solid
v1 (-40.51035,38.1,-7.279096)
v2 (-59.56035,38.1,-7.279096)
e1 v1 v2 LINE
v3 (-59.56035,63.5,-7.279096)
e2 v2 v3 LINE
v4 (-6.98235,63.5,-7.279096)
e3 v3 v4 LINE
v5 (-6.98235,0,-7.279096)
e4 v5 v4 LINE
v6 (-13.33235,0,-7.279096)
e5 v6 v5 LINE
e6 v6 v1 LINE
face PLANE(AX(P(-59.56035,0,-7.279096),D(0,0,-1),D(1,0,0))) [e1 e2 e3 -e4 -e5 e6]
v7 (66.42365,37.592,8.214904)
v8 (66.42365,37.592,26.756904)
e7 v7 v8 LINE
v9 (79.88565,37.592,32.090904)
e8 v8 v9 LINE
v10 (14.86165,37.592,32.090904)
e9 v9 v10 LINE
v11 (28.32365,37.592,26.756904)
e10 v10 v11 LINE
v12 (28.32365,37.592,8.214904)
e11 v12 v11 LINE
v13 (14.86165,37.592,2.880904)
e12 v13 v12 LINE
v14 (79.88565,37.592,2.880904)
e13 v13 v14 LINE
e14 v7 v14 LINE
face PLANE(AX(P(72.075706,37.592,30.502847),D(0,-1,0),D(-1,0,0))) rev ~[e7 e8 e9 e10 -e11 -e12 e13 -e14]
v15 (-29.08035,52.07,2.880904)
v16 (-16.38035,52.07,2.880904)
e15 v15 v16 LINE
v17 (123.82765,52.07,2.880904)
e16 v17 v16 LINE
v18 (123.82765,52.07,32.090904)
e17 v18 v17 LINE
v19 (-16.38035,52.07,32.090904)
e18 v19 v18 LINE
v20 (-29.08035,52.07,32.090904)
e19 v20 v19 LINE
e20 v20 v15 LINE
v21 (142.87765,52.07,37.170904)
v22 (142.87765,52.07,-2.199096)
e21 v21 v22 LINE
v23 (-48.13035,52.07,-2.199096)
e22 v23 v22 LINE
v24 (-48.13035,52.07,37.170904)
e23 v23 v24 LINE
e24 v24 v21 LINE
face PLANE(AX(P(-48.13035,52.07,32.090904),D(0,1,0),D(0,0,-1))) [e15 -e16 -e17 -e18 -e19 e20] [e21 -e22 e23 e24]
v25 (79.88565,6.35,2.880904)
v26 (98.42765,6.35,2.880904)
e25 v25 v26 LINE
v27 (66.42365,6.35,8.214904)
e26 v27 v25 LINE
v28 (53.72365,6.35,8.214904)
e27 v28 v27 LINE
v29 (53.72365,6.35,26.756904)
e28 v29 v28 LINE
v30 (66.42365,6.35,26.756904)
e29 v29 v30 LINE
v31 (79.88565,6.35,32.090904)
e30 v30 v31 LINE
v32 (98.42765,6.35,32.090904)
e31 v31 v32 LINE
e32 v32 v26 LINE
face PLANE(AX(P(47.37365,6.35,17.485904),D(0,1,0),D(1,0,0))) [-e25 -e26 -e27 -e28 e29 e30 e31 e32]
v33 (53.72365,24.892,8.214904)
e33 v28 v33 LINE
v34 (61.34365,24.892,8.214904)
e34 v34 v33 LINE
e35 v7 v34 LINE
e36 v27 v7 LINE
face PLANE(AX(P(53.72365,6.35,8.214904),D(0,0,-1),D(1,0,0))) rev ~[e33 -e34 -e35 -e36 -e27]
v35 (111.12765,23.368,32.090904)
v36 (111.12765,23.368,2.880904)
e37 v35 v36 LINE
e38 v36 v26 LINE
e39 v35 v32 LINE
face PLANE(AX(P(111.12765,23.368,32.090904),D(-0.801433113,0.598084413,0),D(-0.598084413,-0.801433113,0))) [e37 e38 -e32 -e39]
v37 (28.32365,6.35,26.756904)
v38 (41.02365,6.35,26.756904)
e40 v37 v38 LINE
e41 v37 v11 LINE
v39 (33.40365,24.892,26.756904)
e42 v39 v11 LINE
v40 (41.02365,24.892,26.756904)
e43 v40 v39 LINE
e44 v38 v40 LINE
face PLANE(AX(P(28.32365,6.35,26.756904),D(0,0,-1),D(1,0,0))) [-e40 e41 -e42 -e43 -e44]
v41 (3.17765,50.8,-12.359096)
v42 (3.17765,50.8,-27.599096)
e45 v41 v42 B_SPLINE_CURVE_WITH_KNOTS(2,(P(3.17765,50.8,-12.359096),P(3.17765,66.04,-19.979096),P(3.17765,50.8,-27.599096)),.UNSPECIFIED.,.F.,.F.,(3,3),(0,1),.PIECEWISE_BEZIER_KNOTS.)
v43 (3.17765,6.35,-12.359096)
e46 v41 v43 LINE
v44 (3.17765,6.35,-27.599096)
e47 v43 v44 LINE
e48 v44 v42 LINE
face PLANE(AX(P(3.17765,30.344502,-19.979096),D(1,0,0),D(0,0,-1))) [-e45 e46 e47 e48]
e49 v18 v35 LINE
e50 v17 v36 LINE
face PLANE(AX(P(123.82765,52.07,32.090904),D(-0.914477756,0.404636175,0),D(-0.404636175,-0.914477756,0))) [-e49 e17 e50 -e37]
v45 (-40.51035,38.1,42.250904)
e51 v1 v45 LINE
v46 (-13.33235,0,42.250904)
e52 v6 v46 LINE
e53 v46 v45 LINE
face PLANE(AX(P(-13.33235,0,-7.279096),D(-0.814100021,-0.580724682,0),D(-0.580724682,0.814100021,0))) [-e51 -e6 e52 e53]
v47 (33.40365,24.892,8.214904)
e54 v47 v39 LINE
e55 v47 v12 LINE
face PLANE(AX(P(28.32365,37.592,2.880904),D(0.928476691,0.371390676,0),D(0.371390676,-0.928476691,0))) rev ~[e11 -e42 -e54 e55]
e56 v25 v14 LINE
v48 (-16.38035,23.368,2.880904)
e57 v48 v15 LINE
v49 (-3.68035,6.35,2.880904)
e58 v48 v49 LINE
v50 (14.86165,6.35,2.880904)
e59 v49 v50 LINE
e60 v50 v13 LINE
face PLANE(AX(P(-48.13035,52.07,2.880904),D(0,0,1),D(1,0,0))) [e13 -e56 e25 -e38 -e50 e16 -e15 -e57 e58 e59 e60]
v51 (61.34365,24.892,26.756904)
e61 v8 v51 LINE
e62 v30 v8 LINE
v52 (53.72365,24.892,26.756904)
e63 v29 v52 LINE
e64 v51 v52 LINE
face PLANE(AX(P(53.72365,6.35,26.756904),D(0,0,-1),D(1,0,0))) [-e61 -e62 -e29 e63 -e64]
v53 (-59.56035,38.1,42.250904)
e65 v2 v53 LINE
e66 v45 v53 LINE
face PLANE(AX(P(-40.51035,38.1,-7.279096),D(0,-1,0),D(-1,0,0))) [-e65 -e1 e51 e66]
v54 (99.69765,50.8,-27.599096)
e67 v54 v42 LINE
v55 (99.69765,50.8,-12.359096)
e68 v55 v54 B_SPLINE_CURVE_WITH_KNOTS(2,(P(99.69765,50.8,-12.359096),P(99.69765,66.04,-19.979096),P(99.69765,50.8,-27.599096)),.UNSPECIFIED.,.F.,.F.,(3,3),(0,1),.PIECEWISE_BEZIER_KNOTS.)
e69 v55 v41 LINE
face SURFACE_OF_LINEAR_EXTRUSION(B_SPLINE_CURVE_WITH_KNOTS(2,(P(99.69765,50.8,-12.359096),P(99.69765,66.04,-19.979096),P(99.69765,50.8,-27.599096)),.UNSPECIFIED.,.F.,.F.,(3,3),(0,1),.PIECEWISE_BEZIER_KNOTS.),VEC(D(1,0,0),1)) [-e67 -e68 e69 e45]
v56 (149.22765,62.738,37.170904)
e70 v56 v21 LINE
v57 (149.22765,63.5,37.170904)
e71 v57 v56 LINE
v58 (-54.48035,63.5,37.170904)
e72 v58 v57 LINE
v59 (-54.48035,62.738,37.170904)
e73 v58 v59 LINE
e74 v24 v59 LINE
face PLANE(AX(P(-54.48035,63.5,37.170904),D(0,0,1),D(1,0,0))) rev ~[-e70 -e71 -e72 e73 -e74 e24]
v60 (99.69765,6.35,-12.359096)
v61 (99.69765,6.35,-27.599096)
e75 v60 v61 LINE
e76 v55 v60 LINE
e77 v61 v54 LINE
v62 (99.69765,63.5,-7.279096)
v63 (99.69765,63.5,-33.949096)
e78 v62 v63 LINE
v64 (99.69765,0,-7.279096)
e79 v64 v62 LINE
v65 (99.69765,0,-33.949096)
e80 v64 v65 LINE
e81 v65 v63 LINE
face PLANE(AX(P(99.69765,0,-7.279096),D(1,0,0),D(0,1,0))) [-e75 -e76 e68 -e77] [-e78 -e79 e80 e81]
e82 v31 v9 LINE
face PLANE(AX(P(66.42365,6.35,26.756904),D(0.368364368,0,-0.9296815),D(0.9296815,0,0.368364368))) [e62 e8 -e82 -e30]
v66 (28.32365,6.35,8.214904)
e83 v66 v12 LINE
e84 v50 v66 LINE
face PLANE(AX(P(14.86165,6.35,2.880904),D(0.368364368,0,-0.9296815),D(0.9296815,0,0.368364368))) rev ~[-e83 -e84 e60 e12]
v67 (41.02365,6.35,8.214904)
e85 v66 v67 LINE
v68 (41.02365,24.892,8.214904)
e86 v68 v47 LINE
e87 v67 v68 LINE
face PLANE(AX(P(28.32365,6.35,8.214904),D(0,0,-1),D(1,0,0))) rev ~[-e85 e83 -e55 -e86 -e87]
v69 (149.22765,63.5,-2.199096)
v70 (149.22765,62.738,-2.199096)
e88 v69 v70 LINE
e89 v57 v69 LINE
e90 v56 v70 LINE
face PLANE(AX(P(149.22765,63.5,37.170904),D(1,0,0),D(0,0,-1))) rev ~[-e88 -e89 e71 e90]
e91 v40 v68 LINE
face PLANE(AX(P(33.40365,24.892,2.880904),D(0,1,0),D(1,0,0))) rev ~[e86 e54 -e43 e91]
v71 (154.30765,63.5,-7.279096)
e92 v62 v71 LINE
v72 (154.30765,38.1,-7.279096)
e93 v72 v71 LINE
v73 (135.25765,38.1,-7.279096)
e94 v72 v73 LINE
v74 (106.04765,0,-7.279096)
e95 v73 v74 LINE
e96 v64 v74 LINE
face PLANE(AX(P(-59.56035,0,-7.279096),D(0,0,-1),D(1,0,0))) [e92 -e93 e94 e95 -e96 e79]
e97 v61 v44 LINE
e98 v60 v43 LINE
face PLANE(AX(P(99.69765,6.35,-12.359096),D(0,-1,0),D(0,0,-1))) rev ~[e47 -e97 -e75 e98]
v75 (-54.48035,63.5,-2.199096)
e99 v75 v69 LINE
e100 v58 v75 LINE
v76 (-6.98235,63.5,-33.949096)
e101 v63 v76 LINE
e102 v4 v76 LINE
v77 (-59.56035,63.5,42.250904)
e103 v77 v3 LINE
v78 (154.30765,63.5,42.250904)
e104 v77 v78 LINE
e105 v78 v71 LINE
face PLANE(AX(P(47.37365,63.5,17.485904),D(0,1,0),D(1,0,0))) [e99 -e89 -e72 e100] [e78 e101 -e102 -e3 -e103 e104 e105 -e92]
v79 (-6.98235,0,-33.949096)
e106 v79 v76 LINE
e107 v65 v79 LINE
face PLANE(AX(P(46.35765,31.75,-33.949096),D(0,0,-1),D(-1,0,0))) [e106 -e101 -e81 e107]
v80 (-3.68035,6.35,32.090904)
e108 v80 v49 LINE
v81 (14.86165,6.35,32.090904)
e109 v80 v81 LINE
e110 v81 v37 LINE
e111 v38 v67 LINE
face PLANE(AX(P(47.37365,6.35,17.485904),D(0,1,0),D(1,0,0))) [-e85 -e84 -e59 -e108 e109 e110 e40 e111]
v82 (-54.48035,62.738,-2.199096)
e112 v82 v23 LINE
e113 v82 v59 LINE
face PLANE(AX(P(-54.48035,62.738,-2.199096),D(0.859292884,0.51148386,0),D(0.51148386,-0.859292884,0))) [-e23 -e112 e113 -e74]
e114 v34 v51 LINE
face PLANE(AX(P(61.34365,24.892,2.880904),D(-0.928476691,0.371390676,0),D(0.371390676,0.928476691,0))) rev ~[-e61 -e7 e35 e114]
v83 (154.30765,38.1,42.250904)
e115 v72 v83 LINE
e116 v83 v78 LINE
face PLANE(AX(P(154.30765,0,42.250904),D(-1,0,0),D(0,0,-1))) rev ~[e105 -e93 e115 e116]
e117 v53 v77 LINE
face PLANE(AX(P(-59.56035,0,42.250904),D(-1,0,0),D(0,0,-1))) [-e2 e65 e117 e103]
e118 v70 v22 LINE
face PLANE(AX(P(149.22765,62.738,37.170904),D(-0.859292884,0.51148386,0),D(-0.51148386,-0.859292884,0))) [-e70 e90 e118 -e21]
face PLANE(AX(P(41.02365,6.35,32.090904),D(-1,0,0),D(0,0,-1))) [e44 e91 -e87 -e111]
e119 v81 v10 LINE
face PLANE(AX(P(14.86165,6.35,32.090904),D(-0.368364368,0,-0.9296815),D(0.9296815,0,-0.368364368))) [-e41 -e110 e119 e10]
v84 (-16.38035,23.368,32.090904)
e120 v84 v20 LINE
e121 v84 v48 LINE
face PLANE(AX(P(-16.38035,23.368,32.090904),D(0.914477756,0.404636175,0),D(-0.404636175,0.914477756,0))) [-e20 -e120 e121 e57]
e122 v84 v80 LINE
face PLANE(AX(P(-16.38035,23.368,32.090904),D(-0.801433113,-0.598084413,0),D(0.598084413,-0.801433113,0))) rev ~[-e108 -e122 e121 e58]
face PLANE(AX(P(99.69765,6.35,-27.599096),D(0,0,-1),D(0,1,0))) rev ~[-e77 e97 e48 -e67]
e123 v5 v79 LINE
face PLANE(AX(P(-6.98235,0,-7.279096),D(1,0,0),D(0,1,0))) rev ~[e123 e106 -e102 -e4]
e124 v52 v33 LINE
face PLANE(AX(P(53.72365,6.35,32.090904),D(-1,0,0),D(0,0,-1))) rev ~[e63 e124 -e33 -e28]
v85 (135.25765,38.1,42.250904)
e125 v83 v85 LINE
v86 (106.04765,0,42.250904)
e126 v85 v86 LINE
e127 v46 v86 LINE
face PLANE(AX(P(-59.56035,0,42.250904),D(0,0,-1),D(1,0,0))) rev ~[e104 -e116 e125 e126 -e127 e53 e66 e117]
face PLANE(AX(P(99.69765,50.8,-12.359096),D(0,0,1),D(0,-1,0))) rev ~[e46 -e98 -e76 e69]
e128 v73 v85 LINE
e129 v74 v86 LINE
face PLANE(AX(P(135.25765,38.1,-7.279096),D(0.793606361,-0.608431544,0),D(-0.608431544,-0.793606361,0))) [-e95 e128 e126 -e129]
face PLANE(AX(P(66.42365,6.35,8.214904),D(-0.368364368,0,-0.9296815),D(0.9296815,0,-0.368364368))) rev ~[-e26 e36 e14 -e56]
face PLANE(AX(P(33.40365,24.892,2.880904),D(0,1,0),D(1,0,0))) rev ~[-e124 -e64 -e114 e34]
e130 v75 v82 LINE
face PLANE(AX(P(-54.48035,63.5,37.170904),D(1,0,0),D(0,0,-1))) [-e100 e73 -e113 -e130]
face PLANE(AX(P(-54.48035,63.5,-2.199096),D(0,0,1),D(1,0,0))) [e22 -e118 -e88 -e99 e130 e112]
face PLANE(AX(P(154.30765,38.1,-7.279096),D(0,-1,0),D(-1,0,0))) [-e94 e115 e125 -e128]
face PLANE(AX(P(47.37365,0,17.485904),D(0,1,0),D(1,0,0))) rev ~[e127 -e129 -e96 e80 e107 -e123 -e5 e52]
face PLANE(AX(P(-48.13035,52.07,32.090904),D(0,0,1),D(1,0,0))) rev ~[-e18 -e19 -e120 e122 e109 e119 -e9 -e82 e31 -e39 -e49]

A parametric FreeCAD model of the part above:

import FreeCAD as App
import Part
import Sketcher
from FreeCAD import Vector
Q = App.Units.Quantity


def add_polygon(sketch, points):
    """Adds a closed chain of lines whose ends are joined by coincident constraints."""
    first, n = sketch.GeometryCount, len(points)
    for a, b in zip(points, points[1:] + points[:1]):
        sketch.addGeometry(Part.LineSegment(App.Vector(*a, 0), App.Vector(*b, 0)), False)
    for i in range(n):
        sketch.addConstraint(Sketcher.Constraint("Coincident", first + i, 2, first + (i + 1) % n, 1))

doc = App.newDocument("Part")
body = doc.addObject("PartDesign::Body", "Body")

# Sketch on XZ plane
sketch1 = doc.addObject("Sketcher::SketchObject", "Sketch")
body.addObject(sketch1)
sketch1.AttachmentSupport = (doc.XZ_Plane, [""])
sketch1.MapMode = "FlatFace"
add_polygon(sketch1, [(-60, -7), (-60, 42), (154, 42), (154, -7)])  # lines 0-3
sketch1.addConstraint(Sketcher.Constraint("Vertical", 0))
sketch1.addConstraint(Sketcher.Constraint("Horizontal", 1))
sketch1.addConstraint(Sketcher.Constraint("Vertical", 2))
sketch1.addConstraint(Sketcher.Constraint("Horizontal", 3))
sketch1.addConstraint(Sketcher.Constraint("DistanceX", 1, 1, 1, 2, Q("8.42 in")))
sketch1.addConstraint(Sketcher.Constraint("DistanceY", 0, 1, 0, 2, Q("1.95 in")))
sketch1.addConstraint(Sketcher.Constraint("DistanceX", 0, 2, -1, 1, Q("59.56035 mm")))
sketch1.addConstraint(Sketcher.Constraint("DistanceY", -1, 1, 0, 2, Q("42.250904 mm")))
pad1 = doc.addObject("PartDesign::Pad", "Pad")
body.addObject(pad1)
pad1.Profile = sketch1
pad1.Length = Q("2.5 in")
pad1.Reversed = True

# Sketch on XZ plane
sketch2 = doc.addObject("Sketcher::SketchObject", "Sketch001")
body.addObject(sketch2)
sketch2.AttachmentSupport = (doc.XZ_Plane, [""])
sketch2.MapMode = "FlatFace"
sketch2.AttachmentOffset = App.Placement(Vector(0, 0, -2.5 * 25.4), App.Rotation())
add_polygon(sketch2, [(-54, -2), (-54, 37), (149, 37), (149, -2)])  # lines 0-3
sketch2.addConstraint(Sketcher.Constraint("Vertical", 0))
sketch2.addConstraint(Sketcher.Constraint("Horizontal", 1))
sketch2.addConstraint(Sketcher.Constraint("Vertical", 2))
sketch2.addConstraint(Sketcher.Constraint("Horizontal", 3))
sketch2.addConstraint(Sketcher.Constraint("DistanceX", 1, 1, 1, 2, Q("8.02 in")))
sketch2.addConstraint(Sketcher.Constraint("DistanceY", 0, 1, 0, 2, Q("1.55 in")))
sketch2.addConstraint(Sketcher.Constraint("DistanceX", 0, 2, -1, 1, Q("54.48035 mm")))
sketch2.addConstraint(Sketcher.Constraint("DistanceY", -1, 1, 0, 2, Q("37.170904 mm")))
pocket1 = doc.addObject("PartDesign::Pocket", "Pocket")
body.addObject(pocket1)
pocket1.Profile = sketch2
pocket1.Length = Q("0.45 in")
pocket1.Reversed = True

# Sketch on XZ plane
sketch3 = doc.addObject("Sketcher::SketchObject", "Sketch002")
body.addObject(sketch3)
sketch3.AttachmentSupport = (doc.XZ_Plane, [""])
sketch3.MapMode = "FlatFace"
sketch3.AttachmentOffset = App.Placement(Vector(0, 0, -2.05 * 25.4), App.Rotation())
add_polygon(sketch3, [(-48, 3), (-48, 32), (143, 32), (143, 3)])  # lines 0-3
sketch3.addConstraint(Sketcher.Constraint("Vertical", 0))
sketch3.addConstraint(Sketcher.Constraint("Horizontal", 1))
sketch3.addConstraint(Sketcher.Constraint("Vertical", 2))
sketch3.addConstraint(Sketcher.Constraint("Horizontal", 3))
sketch3.addConstraint(Sketcher.Constraint("DistanceX", 1, 1, 1, 2, Q("7.52 in")))
sketch3.addConstraint(Sketcher.Constraint("DistanceY", 0, 1, 0, 2, Q("1.15 in")))
sketch3.addConstraint(Sketcher.Constraint("DistanceX", 0, 2, -1, 1, Q("48.13035 mm")))
sketch3.addConstraint(Sketcher.Constraint("DistanceY", -1, 1, 0, 2, Q("32.090904 mm")))
pocket2 = doc.addObject("PartDesign::Pocket", "Pocket001")
body.addObject(pocket2)
pocket2.Profile = sketch3
pocket2.Length = Q("1.8 in")
pocket2.Reversed = True

# Sketch on YZ plane
sketch4 = doc.addObject("Sketcher::SketchObject", "Sketch003")
body.addObject(sketch4)
sketch4.AttachmentSupport = (doc.YZ_Plane, [""])
sketch4.MapMode = "FlatFace"
sketch4.AttachmentOffset = App.Placement(Vector(0, 0, 142.87765), App.Rotation())
add_polygon(sketch4, [(52, 3), (6, 3), (6, 32), (52, 32)])  # lines 0-3
sketch4.addConstraint(Sketcher.Constraint("Horizontal", 0))
sketch4.addConstraint(Sketcher.Constraint("Vertical", 1))
sketch4.addConstraint(Sketcher.Constraint("Horizontal", 2))
sketch4.addConstraint(Sketcher.Constraint("Vertical", 3))
sketch4.addConstraint(Sketcher.Constraint("DistanceX", 0, 2, 0, 1, Q("1.8 in")))
sketch4.addConstraint(Sketcher.Constraint("DistanceY", 1, 1, 1, 2, Q("1.15 in")))
sketch4.addConstraint(Sketcher.Constraint("DistanceX", -1, 1, 0, 2, Q("0.25 in")))
sketch4.addConstraint(Sketcher.Constraint("DistanceY", -1, 1, 0, 2, Q("2.880904 mm")))
pad2 = doc.addObject("PartDesign::Pad", "Pad001")
body.addObject(pad2)
pad2.Profile = sketch4
pad2.Length = Q("1.25 in")
pad2.Reversed = True

# Sketch on YZ plane
sketch5 = doc.addObject("Sketcher::SketchObject", "Sketch004")
body.addObject(sketch5)
sketch5.AttachmentSupport = (doc.YZ_Plane, [""])
sketch5.MapMode = "FlatFace"
sketch5.AttachmentOffset = App.Placement(Vector(0, 0, -48.13035), App.Rotation())
add_polygon(sketch5, [(52, 32), (6, 32), (6, 3), (52, 3)])  # lines 0-3
sketch5.addConstraint(Sketcher.Constraint("Horizontal", 0))
sketch5.addConstraint(Sketcher.Constraint("Vertical", 1))
sketch5.addConstraint(Sketcher.Constraint("Horizontal", 2))
sketch5.addConstraint(Sketcher.Constraint("Vertical", 3))
sketch5.addConstraint(Sketcher.Constraint("DistanceY", 1, 2, 1, 1, Q("1.15 in")))
sketch5.addConstraint(Sketcher.Constraint("DistanceX", -1, 1, 2, 2, Q("2.05 in")))
sketch5.addConstraint(Sketcher.Constraint("DistanceX", 0, 2, 0, 1, Q("45.802109 mm")))
sketch5.addConstraint(Sketcher.Constraint("DistanceY", -1, 1, 0, 2, Q("32.090904 mm")))
pad3 = doc.addObject("PartDesign::Pad", "Pad002")
body.addObject(pad3)
pad3.Profile = sketch5
pad3.Length = Q("1.25 in")

# Sketch on XY plane
sketch6 = doc.addObject("Sketcher::SketchObject", "Sketch005")
body.addObject(sketch6)
sketch6.AttachmentSupport = (doc.XY_Plane, [""])
sketch6.MapMode = "FlatFace"
sketch6.AttachmentOffset = App.Placement(Vector(0, 0, -2.199096), App.Rotation())
add_polygon(sketch6, [(-48, 52), (-54, 63), (-54, 52)])  # lines 0-2
sketch6.addConstraint(Sketcher.Constraint("Vertical", 1))
sketch6.addConstraint(Sketcher.Constraint("Horizontal", 2))
sketch6.addConstraint(Sketcher.Constraint("DistanceX", 2, 1, 2, 2, Q("0.25 in")))
sketch6.addConstraint(Sketcher.Constraint("DistanceY", 1, 2, 1, 1, Q("0.42 in")))
sketch6.addConstraint(Sketcher.Constraint("DistanceY", -1, 1, 0, 2, Q("2.47 in")))
sketch6.addConstraint(Sketcher.Constraint("DistanceX", 0, 2, -1, 1, Q("54.48035 mm")))
pad4 = doc.addObject("PartDesign::Pad", "Pad003")
body.addObject(pad4)
pad4.Profile = sketch6
pad4.Length = Q("1.6 in")

# Sketch on XY plane
sketch7 = doc.addObject("Sketcher::SketchObject", "Sketch006")
body.addObject(sketch7)
sketch7.AttachmentSupport = (doc.XY_Plane, [""])
sketch7.MapMode = "FlatFace"
sketch7.AttachmentOffset = App.Placement(Vector(0, 0, 37.170904), App.Rotation())
add_polygon(sketch7, [(143, 52), (149, 63), (149, 52)])  # lines 0-2
sketch7.addConstraint(Sketcher.Constraint("Vertical", 1))
sketch7.addConstraint(Sketcher.Constraint("Horizontal", 2))
sketch7.addConstraint(Sketcher.Constraint("DistanceX", 2, 2, 2, 1, Q("0.25 in")))
sketch7.addConstraint(Sketcher.Constraint("DistanceY", 1, 2, 1, 1, Q("0.42 in")))
sketch7.addConstraint(Sketcher.Constraint("DistanceY", -1, 1, 0, 2, Q("2.47 in")))
sketch7.addConstraint(Sketcher.Constraint("DistanceX", -1, 1, 0, 2, Q("149.22765 mm")))
pad5 = doc.addObject("PartDesign::Pad", "Pad004")
body.addObject(pad5)
pad5.Profile = sketch7
pad5.Length = Q("1.6 in")
pad5.Reversed = True

# Sketch on XZ plane
sketch8 = doc.addObject("Sketcher::SketchObject", "Sketch007")
body.addObject(sketch8)
sketch8.AttachmentSupport = (doc.XZ_Plane, [""])
sketch8.MapMode = "FlatFace"
sketch8.AttachmentOffset = App.Placement(Vector(0, 0, -0.25 * 25.4), App.Rotation())
add_polygon(sketch8, [(41, 3), (41, 32), (54, 32), (54, 3)])  # lines 0-3
sketch8.addConstraint(Sketcher.Constraint("Vertical", 0))
sketch8.addConstraint(Sketcher.Constraint("Horizontal", 1))
sketch8.addConstraint(Sketcher.Constraint("Vertical", 2))
sketch8.addConstraint(Sketcher.Constraint("Horizontal", 3))
sketch8.addConstraint(Sketcher.Constraint("DistanceX", 1, 1, 1, 2, Q("0.5 in")))
sketch8.addConstraint(Sketcher.Constraint("DistanceY", 0, 1, 0, 2, Q("1.15 in")))
sketch8.addConstraint(Sketcher.Constraint("DistanceX", -1, 1, 0, 2, Q("41.02365 mm")))
sketch8.addConstraint(Sketcher.Constraint("DistanceY", -1, 1, 0, 2, Q("32.090904 mm")))
pad6 = doc.addObject("PartDesign::Pad", "Pad005")
body.addObject(pad6)
pad6.Profile = sketch8
pad6.Length = Q("0.73 in")
pad6.Reversed = True

# Sketch on XY plane
sketch9 = doc.addObject("Sketcher::SketchObject", "Sketch008")
body.addObject(sketch9)
sketch9.AttachmentSupport = (doc.XY_Plane, [""])
sketch9.MapMode = "FlatFace"
sketch9.AttachmentOffset = App.Placement(Vector(0, 0, 2.880904), App.Rotation())
add_polygon(sketch9, [(66, 38), (28, 38), (33, 25), (61, 25)])  # lines 0-3
sketch9.addConstraint(Sketcher.Constraint("Horizontal", 0))
sketch9.addConstraint(Sketcher.Constraint("Horizontal", 2))
sketch9.addConstraint(Sketcher.Constraint("Equal", 1, 3))
sketch9.addConstraint(Sketcher.Constraint("DistanceX", 0, 2, 0, 1, Q("1.5 in")))
sketch9.addConstraint(Sketcher.Constraint("DistanceX", 2, 1, 2, 2, Q("1.1 in")))
sketch9.addConstraint(Sketcher.Constraint("DistanceY", 1, 2, 0, 2, Q("0.5 in")))
sketch9.addConstraint(Sketcher.Constraint("DistanceY", -1, 1, 0, 2, Q("1.48 in")))
sketch9.addConstraint(Sketcher.Constraint("DistanceX", -1, 1, 0, 2, Q("28.32365 mm")))
pad7 = doc.addObject("PartDesign::Pad", "Pad006")
body.addObject(pad7)
pad7.Profile = sketch9
pad7.Length = Q("1.2 in")

# Sketch on XY plane
sketch10 = doc.addObject("Sketcher::SketchObject", "Sketch009")
body.addObject(sketch10)
sketch10.AttachmentSupport = (doc.XY_Plane, [""])
sketch10.MapMode = "FlatFace"
sketch10.AttachmentOffset = App.Placement(Vector(0, 0, -7.279096), App.Rotation())
add_polygon(sketch10, [(100, 64), (100, 0), (-7, 0), (-7, 64)])  # lines 0-3
sketch10.addConstraint(Sketcher.Constraint("Vertical", 0))
sketch10.addConstraint(Sketcher.Constraint("Horizontal", 1))
sketch10.addConstraint(Sketcher.Constraint("Vertical", 2))
sketch10.addConstraint(Sketcher.Constraint("Horizontal", 3))
sketch10.addConstraint(Sketcher.Constraint("PointOnObject", 0, 2, -1))
sketch10.addConstraint(Sketcher.Constraint("DistanceX", 1, 2, 1, 1, Q("4.2 in")))
sketch10.addConstraint(Sketcher.Constraint("DistanceY", 0, 2, 0, 1, Q("2.5 in")))
sketch10.addConstraint(Sketcher.Constraint("DistanceX", -1, 1, 0, 2, Q("99.69765 mm")))
pad8 = doc.addObject("PartDesign::Pad", "Pad007")
body.addObject(pad8)
pad8.Profile = sketch10
pad8.Length = Q("1.05 in")
pad8.Reversed = True

# Sketch on YZ plane
sketch11 = doc.addObject("Sketcher::SketchObject", "Sketch010")
body.addObject(sketch11)
sketch11.AttachmentSupport = (doc.YZ_Plane, [""])
sketch11.MapMode = "FlatFace"
sketch11.AttachmentOffset = App.Placement(Vector(0, 0, 99.69765), App.Rotation())
sketch11.addGeometry(Part.LineSegment(Vector(50.8, -12.359096, 0), Vector(6.35, -12.359096, 0)), False)
sketch11.addGeometry(Part.LineSegment(Vector(6.35, -12.359096, 0), Vector(6.35, -27.599096, 0)), False)
sketch11.addGeometry(Part.LineSegment(Vector(6.35, -27.599096, 0), Vector(50.8, -27.599096, 0)), False)
sketch11.addGeometry(Part.BSplineCurve([Vector(50.8, -12.359096, 0), Vector(66.04, -19.979096, 0), Vector(50.8, -27.599096, 0)], [3, 3], [0, 1], False, 2, [1, 1, 1], False), False)
sketch11.addConstraint(Sketcher.Constraint("Block", 3))
sketch11.addConstraint(Sketcher.Constraint("Coincident", 0, 2, 1, 1))
sketch11.addConstraint(Sketcher.Constraint("Coincident", 1, 2, 2, 1))
sketch11.addConstraint(Sketcher.Constraint("Coincident", 2, 2, 3, 2))
sketch11.addConstraint(Sketcher.Constraint("Coincident", 3, 1, 0, 1))
sketch11.addConstraint(Sketcher.Constraint("Horizontal", 0))
sketch11.addConstraint(Sketcher.Constraint("Vertical", 1))
sketch11.addConstraint(Sketcher.Constraint("Horizontal", 2))
sketch11.addConstraint(Sketcher.Constraint("DistanceX", 0, 2, 0, 1, Q("1.75 in")))
pocket3 = doc.addObject("PartDesign::Pocket", "Pocket002")
body.addObject(pocket3)
pocket3.Profile = sketch11
pocket3.Length = Q("3.8 in")

# Sketch on XY plane
sketch12 = doc.addObject("Sketcher::SketchObject", "Sketch011")
body.addObject(sketch12)
sketch12.AttachmentSupport = (doc.XY_Plane, [""])
sketch12.MapMode = "FlatFace"
sketch12.AttachmentOffset = App.Placement(Vector(0, 0, -7.279096), App.Rotation())
add_polygon(sketch12, [(106, 0), (154, 38), (154, 0)])  # lines 0-2
sketch12.addConstraint(Sketcher.Constraint("Vertical", 1))
sketch12.addConstraint(Sketcher.Constraint("Horizontal", 2))
sketch12.addConstraint(Sketcher.Constraint("PointOnObject", 1, 2, -1))
sketch12.addConstraint(Sketcher.Constraint("DistanceX", 2, 2, 2, 1, Q("1.9 in")))
sketch12.addConstraint(Sketcher.Constraint("DistanceY", 1, 2, 1, 1, Q("1.5 in")))
sketch12.addConstraint(Sketcher.Constraint("DistanceX", -1, 1, 0, 2, Q("154.30765 mm")))
pocket4 = doc.addObject("PartDesign::Pocket", "Pocket003")
body.addObject(pocket4)
pocket4.Profile = sketch12
pocket4.Length = Q("1.95 in")
pocket4.Reversed = True

# Sketch on XZ plane
sketch13 = doc.addObject("Sketcher::SketchObject", "Sketch012")
body.addObject(sketch13)
sketch13.AttachmentSupport = (doc.XZ_Plane, [""])
sketch13.MapMode = "FlatFace"
sketch13.AttachmentOffset = App.Placement(Vector(0, 0, -2.05 * 25.4), App.Rotation())
add_polygon(sketch13, [(111, 3), (111, 32), (124, 32), (124, 3)])  # lines 0-3
sketch13.addConstraint(Sketcher.Constraint("Vertical", 0))
sketch13.addConstraint(Sketcher.Constraint("Horizontal", 1))
sketch13.addConstraint(Sketcher.Constraint("Vertical", 2))
sketch13.addConstraint(Sketcher.Constraint("Horizontal", 3))
sketch13.addConstraint(Sketcher.Constraint("DistanceX", 1, 1, 1, 2, Q("0.5 in")))
sketch13.addConstraint(Sketcher.Constraint("DistanceY", 0, 1, 0, 2, Q("1.15 in")))
sketch13.addConstraint(Sketcher.Constraint("DistanceX", -1, 1, 0, 2, Q("111.12765 mm")))
sketch13.addConstraint(Sketcher.Constraint("DistanceY", -1, 1, 0, 2, Q("32.090904 mm")))
pocket5 = doc.addObject("PartDesign::Pocket", "Pocket004")
body.addObject(pocket5)
pocket5.Profile = sketch13
pocket5.Length = Q("1.13 in")
pocket5.Reversed = True

# Sketch on XY plane
sketch14 = doc.addObject("Sketcher::SketchObject", "Sketch013")
body.addObject(sketch14)
sketch14.AttachmentSupport = (doc.XY_Plane, [""])
sketch14.MapMode = "FlatFace"
sketch14.AttachmentOffset = App.Placement(Vector(0, 0, 32.090904), App.Rotation())
add_polygon(sketch14, [(111, 23), (124, 52), (124, 23)])  # lines 0-2
sketch14.addConstraint(Sketcher.Constraint("Vertical", 1))
sketch14.addConstraint(Sketcher.Constraint("Horizontal", 2))
sketch14.addConstraint(Sketcher.Constraint("DistanceX", 2, 2, 2, 1, Q("0.5 in")))
sketch14.addConstraint(Sketcher.Constraint("DistanceY", 1, 2, 1, 1, Q("1.13 in")))
sketch14.addConstraint(Sketcher.Constraint("DistanceY", -1, 1, 0, 2, Q("2.05 in")))
sketch14.addConstraint(Sketcher.Constraint("DistanceX", -1, 1, 0, 2, Q("123.82765 mm")))
pad9 = doc.addObject("PartDesign::Pad", "Pad008")
body.addObject(pad9)
pad9.Profile = sketch14
pad9.Length = Q("1.15 in")
pad9.Reversed = True

# Sketch on XZ plane
sketch15 = doc.addObject("Sketcher::SketchObject", "Sketch014")
body.addObject(sketch15)
sketch15.AttachmentSupport = (doc.XZ_Plane, [""])
sketch15.MapMode = "FlatFace"
sketch15.AttachmentOffset = App.Placement(Vector(0, 0, -2.05 * 25.4), App.Rotation())
add_polygon(sketch15, [(-29, 3), (-29, 32), (-16, 32), (-16, 3)])  # lines 0-3
sketch15.addConstraint(Sketcher.Constraint("Vertical", 0))
sketch15.addConstraint(Sketcher.Constraint("Horizontal", 1))
sketch15.addConstraint(Sketcher.Constraint("Vertical", 2))
sketch15.addConstraint(Sketcher.Constraint("Horizontal", 3))
sketch15.addConstraint(Sketcher.Constraint("DistanceX", 1, 1, 1, 2, Q("0.5 in")))
sketch15.addConstraint(Sketcher.Constraint("DistanceY", 0, 1, 0, 2, Q("1.15 in")))
sketch15.addConstraint(Sketcher.Constraint("DistanceX", 0, 2, -1, 1, Q("29.08035 mm")))
sketch15.addConstraint(Sketcher.Constraint("DistanceY", -1, 1, 0, 2, Q("32.090904 mm")))
pocket6 = doc.addObject("PartDesign::Pocket", "Pocket005")
body.addObject(pocket6)
pocket6.Profile = sketch15
pocket6.Length = Q("1.13 in")
pocket6.Reversed = True

# Sketch on XY plane
sketch16 = doc.addObject("Sketcher::SketchObject", "Sketch015")
body.addObject(sketch16)
sketch16.AttachmentSupport = (doc.XY_Plane, [""])
sketch16.MapMode = "FlatFace"
sketch16.AttachmentOffset = App.Placement(Vector(0, 0, 32.090904), App.Rotation())
add_polygon(sketch16, [(-29, 52), (-16, 23), (-29, 23)])  # lines 0-2
sketch16.addConstraint(Sketcher.Constraint("Horizontal", 1))
sketch16.addConstraint(Sketcher.Constraint("Vertical", 2))
sketch16.addConstraint(Sketcher.Constraint("DistanceX", 1, 2, 1, 1, Q("0.5 in")))
sketch16.addConstraint(Sketcher.Constraint("DistanceY", 2, 1, 2, 2, Q("1.13 in")))
sketch16.addConstraint(Sketcher.Constraint("DistanceY", -1, 1, 0, 2, Q("0.92 in")))
sketch16.addConstraint(Sketcher.Constraint("DistanceX", 0, 2, -1, 1, Q("16.38035 mm")))
pad10 = doc.addObject("PartDesign::Pad", "Pad009")
body.addObject(pad10)
pad10.Profile = sketch16
pad10.Length = Q("1.15 in")
pad10.Reversed = True

# Sketch on XY plane
sketch17 = doc.addObject("Sketcher::SketchObject", "Sketch016")
body.addObject(sketch17)
sketch17.AttachmentSupport = (doc.XY_Plane, [""])
sketch17.MapMode = "FlatFace"
sketch17.AttachmentOffset = App.Placement(Vector(0, 0, 32.090904), App.Rotation())
add_polygon(sketch17, [(98, 6), (111, 23), (111, 6)])  # lines 0-2
sketch17.addConstraint(Sketcher.Constraint("Vertical", 1))
sketch17.addConstraint(Sketcher.Constraint("Horizontal", 2))
sketch17.addConstraint(Sketcher.Constraint("DistanceX", 2, 2, 2, 1, Q("0.5 in")))
sketch17.addConstraint(Sketcher.Constraint("DistanceY", 1, 2, 1, 1, Q("0.67 in")))
sketch17.addConstraint(Sketcher.Constraint("DistanceY", -1, 1, 0, 2, Q("0.92 in")))
sketch17.addConstraint(Sketcher.Constraint("DistanceX", -1, 1, 0, 2, Q("111.12765 mm")))
pad11 = doc.addObject("PartDesign::Pad", "Pad010")
body.addObject(pad11)
pad11.Profile = sketch17
pad11.Length = Q("1.15 in")
pad11.Reversed = True

# Sketch on XY plane
sketch18 = doc.addObject("Sketcher::SketchObject", "Sketch017")
body.addObject(sketch18)
sketch18.AttachmentSupport = (doc.XY_Plane, [""])
sketch18.MapMode = "FlatFace"
sketch18.AttachmentOffset = App.Placement(Vector(0, 0, -7.279096), App.Rotation())
add_polygon(sketch18, [(135, 38), (154, 38), (106, 0)])  # lines 0-2
sketch18.addConstraint(Sketcher.Constraint("Horizontal", 0))
sketch18.addConstraint(Sketcher.Constraint("PointOnObject", 1, 2, -1))
sketch18.addConstraint(Sketcher.Constraint("DistanceX", 0, 1, 0, 2, Q("0.75 in")))
sketch18.addConstraint(Sketcher.Constraint("DistanceY", -1, 1, 0, 2, Q("1.5 in")))
sketch18.addConstraint(Sketcher.Constraint("DistanceX", 1, 2, 0, 2, Q("1.9 in")))
sketch18.addConstraint(Sketcher.Constraint("DistanceX", -1, 1, 0, 2, Q("154.30765 mm")))
pocket7 = doc.addObject("PartDesign::Pocket", "Pocket006")
body.addObject(pocket7)
pocket7.Profile = sketch18
pocket7.Length = Q("1.95 in")
pocket7.Reversed = True

# Sketch on XY plane
sketch19 = doc.addObject("Sketcher::SketchObject", "Sketch018")
body.addObject(sketch19)
sketch19.AttachmentSupport = (doc.XY_Plane, [""])
sketch19.MapMode = "FlatFace"
sketch19.AttachmentOffset = App.Placement(Vector(0, 0, 32.090904), App.Rotation())
add_polygon(sketch19, [(-16, 23), (-4, 6), (-16, 6)])  # lines 0-2
sketch19.addConstraint(Sketcher.Constraint("Horizontal", 1))
sketch19.addConstraint(Sketcher.Constraint("Vertical", 2))
sketch19.addConstraint(Sketcher.Constraint("DistanceX", 1, 2, 1, 1, Q("0.5 in")))
sketch19.addConstraint(Sketcher.Constraint("DistanceY", 2, 1, 2, 2, Q("0.67 in")))
sketch19.addConstraint(Sketcher.Constraint("DistanceY", -1, 1, 0, 2, Q("0.25 in")))
sketch19.addConstraint(Sketcher.Constraint("DistanceX", 0, 2, -1, 1, Q("3.68035 mm")))
pad12 = doc.addObject("PartDesign::Pad", "Pad011")
body.addObject(pad12)
pad12.Profile = sketch19
pad12.Length = Q("1.15 in")
pad12.Reversed = True

# Sketch on XY plane
sketch20 = doc.addObject("Sketcher::SketchObject", "Sketch019")
body.addObject(sketch20)
sketch20.AttachmentSupport = (doc.XY_Plane, [""])
sketch20.MapMode = "FlatFace"
sketch20.AttachmentOffset = App.Placement(Vector(0, 0, -7.279096), App.Rotation())
add_polygon(sketch20, [(-60, 38), (-13, 0), (-60, 0)])  # lines 0-2
sketch20.addConstraint(Sketcher.Constraint("Horizontal", 1))
sketch20.addConstraint(Sketcher.Constraint("Vertical", 2))
sketch20.addConstraint(Sketcher.Constraint("PointOnObject", 0, 2, -1))
sketch20.addConstraint(Sketcher.Constraint("DistanceY", 2, 1, 2, 2, Q("1.5 in")))
sketch20.addConstraint(Sketcher.Constraint("DistanceX", 1, 2, 1, 1, Q("1.82 in")))
sketch20.addConstraint(Sketcher.Constraint("DistanceX", 0, 2, -1, 1, Q("13.33235 mm")))
pocket8 = doc.addObject("PartDesign::Pocket", "Pocket007")
body.addObject(pocket8)
pocket8.Profile = sketch20
pocket8.Length = Q("2 in")
pocket8.Reversed = True

# Sketch on XY plane
sketch21 = doc.addObject("Sketcher::SketchObject", "Sketch020")
body.addObject(sketch21)
sketch21.AttachmentSupport = (doc.XY_Plane, [""])
sketch21.MapMode = "FlatFace"
sketch21.AttachmentOffset = App.Placement(Vector(0, 0, -7.279096), App.Rotation())
add_polygon(sketch21, [(-60, 38), (-41, 38), (-13, 0)])  # lines 0-2
sketch21.addConstraint(Sketcher.Constraint("Horizontal", 0))
sketch21.addConstraint(Sketcher.Constraint("PointOnObject", 1, 2, -1))
sketch21.addConstraint(Sketcher.Constraint("DistanceX", 0, 1, 0, 2, Q("0.75 in")))
sketch21.addConstraint(Sketcher.Constraint("DistanceY", -1, 1, 0, 2, Q("1.5 in")))
sketch21.addConstraint(Sketcher.Constraint("DistanceX", 0, 2, 1, 2, Q("1.07 in")))
sketch21.addConstraint(Sketcher.Constraint("DistanceX", 0, 2, -1, 1, Q("40.51035 mm")))
pocket9 = doc.addObject("PartDesign::Pocket", "Pocket008")
body.addObject(pocket9)
pocket9.Profile = sketch21
pocket9.Length = Q("1.95 in")
pocket9.Reversed = True

# Sketch on XZ plane
sketch22 = doc.addObject("Sketcher::SketchObject", "Sketch021")
body.addObject(sketch22)
sketch22.AttachmentSupport = (doc.XZ_Plane, [""])
sketch22.MapMode = "FlatFace"
sketch22.AttachmentOffset = App.Placement(Vector(0, 0, -0.25 * 25.4), App.Rotation())
add_polygon(sketch22, [(28, 3), (28, 8), (41, 8), (41, 3)])  # lines 0-3
sketch22.addConstraint(Sketcher.Constraint("Vertical", 0))
sketch22.addConstraint(Sketcher.Constraint("Horizontal", 1))
sketch22.addConstraint(Sketcher.Constraint("Vertical", 2))
sketch22.addConstraint(Sketcher.Constraint("Horizontal", 3))
sketch22.addConstraint(Sketcher.Constraint("DistanceX", 1, 1, 1, 2, Q("0.5 in")))
sketch22.addConstraint(Sketcher.Constraint("DistanceY", 0, 1, 0, 2, Q("0.21 in")))
sketch22.addConstraint(Sketcher.Constraint("DistanceX", -1, 1, 0, 2, Q("28.32365 mm")))
sketch22.addConstraint(Sketcher.Constraint("DistanceY", -1, 1, 0, 2, Q("8.214904 mm")))
pad13 = doc.addObject("PartDesign::Pad", "Pad012")
body.addObject(pad13)
pad13.Profile = sketch22
pad13.Length = Q("1.23 in")
pad13.Reversed = True

# Sketch on XZ plane
sketch23 = doc.addObject("Sketcher::SketchObject", "Sketch022")
body.addObject(sketch23)
sketch23.AttachmentSupport = (doc.XZ_Plane, [""])
sketch23.MapMode = "FlatFace"
sketch23.AttachmentOffset = App.Placement(Vector(0, 0, -0.25 * 25.4), App.Rotation())
add_polygon(sketch23, [(15, 3), (28, 8), (28, 3)])  # lines 0-2
sketch23.addConstraint(Sketcher.Constraint("Vertical", 1))
sketch23.addConstraint(Sketcher.Constraint("Horizontal", 2))
sketch23.addConstraint(Sketcher.Constraint("DistanceX", 2, 2, 2, 1, Q("0.53 in")))
sketch23.addConstraint(Sketcher.Constraint("DistanceY", 1, 2, 1, 1, Q("0.21 in")))
sketch23.addConstraint(Sketcher.Constraint("DistanceX", -1, 1, 0, 2, Q("28.32365 mm")))
sketch23.addConstraint(Sketcher.Constraint("DistanceY", -1, 1, 0, 2, Q("8.214904 mm")))
pad14 = doc.addObject("PartDesign::Pad", "Pad013")
body.addObject(pad14)
pad14.Profile = sketch23
pad14.Length = Q("1.23 in")
pad14.Reversed = True

# Sketch on XZ plane
sketch24 = doc.addObject("Sketcher::SketchObject", "Sketch023")
body.addObject(sketch24)
sketch24.AttachmentSupport = (doc.XZ_Plane, [""])
sketch24.MapMode = "FlatFace"
sketch24.AttachmentOffset = App.Placement(Vector(0, 0, -0.25 * 25.4), App.Rotation())
add_polygon(sketch24, [(28, 27), (28, 32), (41, 32), (41, 27)])  # lines 0-3
sketch24.addConstraint(Sketcher.Constraint("Vertical", 0))
sketch24.addConstraint(Sketcher.Constraint("Horizontal", 1))
sketch24.addConstraint(Sketcher.Constraint("Vertical", 2))
sketch24.addConstraint(Sketcher.Constraint("Horizontal", 3))
sketch24.addConstraint(Sketcher.Constraint("DistanceX", 1, 1, 1, 2, Q("0.5 in")))
sketch24.addConstraint(Sketcher.Constraint("DistanceY", 0, 1, 0, 2, Q("0.21 in")))
sketch24.addConstraint(Sketcher.Constraint("DistanceX", -1, 1, 0, 2, Q("28.32365 mm")))
sketch24.addConstraint(Sketcher.Constraint("DistanceY", -1, 1, 0, 2, Q("32.090904 mm")))
pad15 = doc.addObject("PartDesign::Pad", "Pad014")
body.addObject(pad15)
pad15.Profile = sketch24
pad15.Length = Q("1.23 in")
pad15.Reversed = True

# Sketch on XZ plane
sketch25 = doc.addObject("Sketcher::SketchObject", "Sketch024")
body.addObject(sketch25)
sketch25.AttachmentSupport = (doc.XZ_Plane, [""])
sketch25.MapMode = "FlatFace"
sketch25.AttachmentOffset = App.Placement(Vector(0, 0, -0.25 * 25.4), App.Rotation())
add_polygon(sketch25, [(28, 27), (15, 32), (28, 32)])  # lines 0-2
sketch25.addConstraint(Sketcher.Constraint("Horizontal", 1))
sketch25.addConstraint(Sketcher.Constraint("Vertical", 2))
sketch25.addConstraint(Sketcher.Constraint("DistanceX", 1, 1, 1, 2, Q("0.53 in")))
sketch25.addConstraint(Sketcher.Constraint("DistanceY", 2, 2, 2, 1, Q("0.21 in")))
sketch25.addConstraint(Sketcher.Constraint("DistanceX", -1, 1, 0, 2, Q("14.86165 mm")))
sketch25.addConstraint(Sketcher.Constraint("DistanceY", -1, 1, 0, 2, Q("32.090904 mm")))
pad16 = doc.addObject("PartDesign::Pad", "Pad015")
body.addObject(pad16)
pad16.Profile = sketch25
pad16.Length = Q("1.23 in")
pad16.Reversed = True

# Sketch on XZ plane
sketch26 = doc.addObject("Sketcher::SketchObject", "Sketch025")
body.addObject(sketch26)
sketch26.AttachmentSupport = (doc.XZ_Plane, [""])
sketch26.MapMode = "FlatFace"
sketch26.AttachmentOffset = App.Placement(Vector(0, 0, -0.25 * 25.4), App.Rotation())
add_polygon(sketch26, [(54, 3), (54, 8), (66, 8), (66, 3)])  # lines 0-3
sketch26.addConstraint(Sketcher.Constraint("Vertical", 0))
sketch26.addConstraint(Sketcher.Constraint("Horizontal", 1))
sketch26.addConstraint(Sketcher.Constraint("Vertical", 2))
sketch26.addConstraint(Sketcher.Constraint("Horizontal", 3))
sketch26.addConstraint(Sketcher.Constraint("DistanceX", 1, 1, 1, 2, Q("0.5 in")))
sketch26.addConstraint(Sketcher.Constraint("DistanceY", 0, 1, 0, 2, Q("0.21 in")))
sketch26.addConstraint(Sketcher.Constraint("DistanceX", -1, 1, 0, 2, Q("53.72365 mm")))
sketch26.addConstraint(Sketcher.Constraint("DistanceY", -1, 1, 0, 2, Q("8.214904 mm")))
pad17 = doc.addObject("PartDesign::Pad", "Pad016")
body.addObject(pad17)
pad17.Profile = sketch26
pad17.Length = Q("1.23 in")
pad17.Reversed = True

# Sketch on XZ plane
sketch27 = doc.addObject("Sketcher::SketchObject", "Sketch026")
body.addObject(sketch27)
sketch27.AttachmentSupport = (doc.XZ_Plane, [""])
sketch27.MapMode = "FlatFace"
sketch27.AttachmentOffset = App.Placement(Vector(0, 0, -0.25 * 25.4), App.Rotation())
add_polygon(sketch27, [(66, 8), (80, 3), (66, 3)])  # lines 0-2
sketch27.addConstraint(Sketcher.Constraint("Horizontal", 1))
sketch27.addConstraint(Sketcher.Constraint("Vertical", 2))
sketch27.addConstraint(Sketcher.Constraint("DistanceX", 1, 2, 1, 1, Q("0.53 in")))
sketch27.addConstraint(Sketcher.Constraint("DistanceY", 2, 1, 2, 2, Q("0.21 in")))
sketch27.addConstraint(Sketcher.Constraint("DistanceX", -1, 1, 0, 2, Q("79.88565 mm")))
sketch27.addConstraint(Sketcher.Constraint("DistanceY", -1, 1, 0, 2, Q("2.880904 mm")))
pad18 = doc.addObject("PartDesign::Pad", "Pad017")
body.addObject(pad18)
pad18.Profile = sketch27
pad18.Length = Q("1.23 in")
pad18.Reversed = True

# Sketch on XZ plane
sketch28 = doc.addObject("Sketcher::SketchObject", "Sketch027")
body.addObject(sketch28)
sketch28.AttachmentSupport = (doc.XZ_Plane, [""])
sketch28.MapMode = "FlatFace"
sketch28.AttachmentOffset = App.Placement(Vector(0, 0, -0.25 * 25.4), App.Rotation())
add_polygon(sketch28, [(54, 27), (54, 32), (66, 32), (66, 27)])  # lines 0-3
sketch28.addConstraint(Sketcher.Constraint("Vertical", 0))
sketch28.addConstraint(Sketcher.Constraint("Horizontal", 1))
sketch28.addConstraint(Sketcher.Constraint("Vertical", 2))
sketch28.addConstraint(Sketcher.Constraint("Horizontal", 3))
sketch28.addConstraint(Sketcher.Constraint("DistanceX", 1, 1, 1, 2, Q("0.5 in")))
sketch28.addConstraint(Sketcher.Constraint("DistanceY", 0, 1, 0, 2, Q("0.21 in")))
sketch28.addConstraint(Sketcher.Constraint("DistanceX", -1, 1, 0, 2, Q("53.72365 mm")))
sketch28.addConstraint(Sketcher.Constraint("DistanceY", -1, 1, 0, 2, Q("32.090904 mm")))
pad19 = doc.addObject("PartDesign::Pad", "Pad018")
body.addObject(pad19)
pad19.Profile = sketch28
pad19.Length = Q("1.23 in")
pad19.Reversed = True

# Sketch on XZ plane
sketch29 = doc.addObject("Sketcher::SketchObject", "Sketch028")
body.addObject(sketch29)
sketch29.AttachmentSupport = (doc.XZ_Plane, [""])
sketch29.MapMode = "FlatFace"
sketch29.AttachmentOffset = App.Placement(Vector(0, 0, -0.25 * 25.4), App.Rotation())
add_polygon(sketch29, [(80, 32), (66, 27), (66, 32)])  # lines 0-2
sketch29.addConstraint(Sketcher.Constraint("Vertical", 1))
sketch29.addConstraint(Sketcher.Constraint("Horizontal", 2))
sketch29.addConstraint(Sketcher.Constraint("DistanceX", 2, 1, 2, 2, Q("0.53 in")))
sketch29.addConstraint(Sketcher.Constraint("DistanceY", 1, 1, 1, 2, Q("0.21 in")))
sketch29.addConstraint(Sketcher.Constraint("DistanceX", -1, 1, 0, 2, Q("66.42365 mm")))
sketch29.addConstraint(Sketcher.Constraint("DistanceY", -1, 1, 0, 2, Q("26.756904 mm")))
pad20 = doc.addObject("PartDesign::Pad", "Pad019")
body.addObject(pad20)
pad20.Profile = sketch29
pad20.Length = Q("1.23 in")
pad20.Reversed = True

doc.recompute()
